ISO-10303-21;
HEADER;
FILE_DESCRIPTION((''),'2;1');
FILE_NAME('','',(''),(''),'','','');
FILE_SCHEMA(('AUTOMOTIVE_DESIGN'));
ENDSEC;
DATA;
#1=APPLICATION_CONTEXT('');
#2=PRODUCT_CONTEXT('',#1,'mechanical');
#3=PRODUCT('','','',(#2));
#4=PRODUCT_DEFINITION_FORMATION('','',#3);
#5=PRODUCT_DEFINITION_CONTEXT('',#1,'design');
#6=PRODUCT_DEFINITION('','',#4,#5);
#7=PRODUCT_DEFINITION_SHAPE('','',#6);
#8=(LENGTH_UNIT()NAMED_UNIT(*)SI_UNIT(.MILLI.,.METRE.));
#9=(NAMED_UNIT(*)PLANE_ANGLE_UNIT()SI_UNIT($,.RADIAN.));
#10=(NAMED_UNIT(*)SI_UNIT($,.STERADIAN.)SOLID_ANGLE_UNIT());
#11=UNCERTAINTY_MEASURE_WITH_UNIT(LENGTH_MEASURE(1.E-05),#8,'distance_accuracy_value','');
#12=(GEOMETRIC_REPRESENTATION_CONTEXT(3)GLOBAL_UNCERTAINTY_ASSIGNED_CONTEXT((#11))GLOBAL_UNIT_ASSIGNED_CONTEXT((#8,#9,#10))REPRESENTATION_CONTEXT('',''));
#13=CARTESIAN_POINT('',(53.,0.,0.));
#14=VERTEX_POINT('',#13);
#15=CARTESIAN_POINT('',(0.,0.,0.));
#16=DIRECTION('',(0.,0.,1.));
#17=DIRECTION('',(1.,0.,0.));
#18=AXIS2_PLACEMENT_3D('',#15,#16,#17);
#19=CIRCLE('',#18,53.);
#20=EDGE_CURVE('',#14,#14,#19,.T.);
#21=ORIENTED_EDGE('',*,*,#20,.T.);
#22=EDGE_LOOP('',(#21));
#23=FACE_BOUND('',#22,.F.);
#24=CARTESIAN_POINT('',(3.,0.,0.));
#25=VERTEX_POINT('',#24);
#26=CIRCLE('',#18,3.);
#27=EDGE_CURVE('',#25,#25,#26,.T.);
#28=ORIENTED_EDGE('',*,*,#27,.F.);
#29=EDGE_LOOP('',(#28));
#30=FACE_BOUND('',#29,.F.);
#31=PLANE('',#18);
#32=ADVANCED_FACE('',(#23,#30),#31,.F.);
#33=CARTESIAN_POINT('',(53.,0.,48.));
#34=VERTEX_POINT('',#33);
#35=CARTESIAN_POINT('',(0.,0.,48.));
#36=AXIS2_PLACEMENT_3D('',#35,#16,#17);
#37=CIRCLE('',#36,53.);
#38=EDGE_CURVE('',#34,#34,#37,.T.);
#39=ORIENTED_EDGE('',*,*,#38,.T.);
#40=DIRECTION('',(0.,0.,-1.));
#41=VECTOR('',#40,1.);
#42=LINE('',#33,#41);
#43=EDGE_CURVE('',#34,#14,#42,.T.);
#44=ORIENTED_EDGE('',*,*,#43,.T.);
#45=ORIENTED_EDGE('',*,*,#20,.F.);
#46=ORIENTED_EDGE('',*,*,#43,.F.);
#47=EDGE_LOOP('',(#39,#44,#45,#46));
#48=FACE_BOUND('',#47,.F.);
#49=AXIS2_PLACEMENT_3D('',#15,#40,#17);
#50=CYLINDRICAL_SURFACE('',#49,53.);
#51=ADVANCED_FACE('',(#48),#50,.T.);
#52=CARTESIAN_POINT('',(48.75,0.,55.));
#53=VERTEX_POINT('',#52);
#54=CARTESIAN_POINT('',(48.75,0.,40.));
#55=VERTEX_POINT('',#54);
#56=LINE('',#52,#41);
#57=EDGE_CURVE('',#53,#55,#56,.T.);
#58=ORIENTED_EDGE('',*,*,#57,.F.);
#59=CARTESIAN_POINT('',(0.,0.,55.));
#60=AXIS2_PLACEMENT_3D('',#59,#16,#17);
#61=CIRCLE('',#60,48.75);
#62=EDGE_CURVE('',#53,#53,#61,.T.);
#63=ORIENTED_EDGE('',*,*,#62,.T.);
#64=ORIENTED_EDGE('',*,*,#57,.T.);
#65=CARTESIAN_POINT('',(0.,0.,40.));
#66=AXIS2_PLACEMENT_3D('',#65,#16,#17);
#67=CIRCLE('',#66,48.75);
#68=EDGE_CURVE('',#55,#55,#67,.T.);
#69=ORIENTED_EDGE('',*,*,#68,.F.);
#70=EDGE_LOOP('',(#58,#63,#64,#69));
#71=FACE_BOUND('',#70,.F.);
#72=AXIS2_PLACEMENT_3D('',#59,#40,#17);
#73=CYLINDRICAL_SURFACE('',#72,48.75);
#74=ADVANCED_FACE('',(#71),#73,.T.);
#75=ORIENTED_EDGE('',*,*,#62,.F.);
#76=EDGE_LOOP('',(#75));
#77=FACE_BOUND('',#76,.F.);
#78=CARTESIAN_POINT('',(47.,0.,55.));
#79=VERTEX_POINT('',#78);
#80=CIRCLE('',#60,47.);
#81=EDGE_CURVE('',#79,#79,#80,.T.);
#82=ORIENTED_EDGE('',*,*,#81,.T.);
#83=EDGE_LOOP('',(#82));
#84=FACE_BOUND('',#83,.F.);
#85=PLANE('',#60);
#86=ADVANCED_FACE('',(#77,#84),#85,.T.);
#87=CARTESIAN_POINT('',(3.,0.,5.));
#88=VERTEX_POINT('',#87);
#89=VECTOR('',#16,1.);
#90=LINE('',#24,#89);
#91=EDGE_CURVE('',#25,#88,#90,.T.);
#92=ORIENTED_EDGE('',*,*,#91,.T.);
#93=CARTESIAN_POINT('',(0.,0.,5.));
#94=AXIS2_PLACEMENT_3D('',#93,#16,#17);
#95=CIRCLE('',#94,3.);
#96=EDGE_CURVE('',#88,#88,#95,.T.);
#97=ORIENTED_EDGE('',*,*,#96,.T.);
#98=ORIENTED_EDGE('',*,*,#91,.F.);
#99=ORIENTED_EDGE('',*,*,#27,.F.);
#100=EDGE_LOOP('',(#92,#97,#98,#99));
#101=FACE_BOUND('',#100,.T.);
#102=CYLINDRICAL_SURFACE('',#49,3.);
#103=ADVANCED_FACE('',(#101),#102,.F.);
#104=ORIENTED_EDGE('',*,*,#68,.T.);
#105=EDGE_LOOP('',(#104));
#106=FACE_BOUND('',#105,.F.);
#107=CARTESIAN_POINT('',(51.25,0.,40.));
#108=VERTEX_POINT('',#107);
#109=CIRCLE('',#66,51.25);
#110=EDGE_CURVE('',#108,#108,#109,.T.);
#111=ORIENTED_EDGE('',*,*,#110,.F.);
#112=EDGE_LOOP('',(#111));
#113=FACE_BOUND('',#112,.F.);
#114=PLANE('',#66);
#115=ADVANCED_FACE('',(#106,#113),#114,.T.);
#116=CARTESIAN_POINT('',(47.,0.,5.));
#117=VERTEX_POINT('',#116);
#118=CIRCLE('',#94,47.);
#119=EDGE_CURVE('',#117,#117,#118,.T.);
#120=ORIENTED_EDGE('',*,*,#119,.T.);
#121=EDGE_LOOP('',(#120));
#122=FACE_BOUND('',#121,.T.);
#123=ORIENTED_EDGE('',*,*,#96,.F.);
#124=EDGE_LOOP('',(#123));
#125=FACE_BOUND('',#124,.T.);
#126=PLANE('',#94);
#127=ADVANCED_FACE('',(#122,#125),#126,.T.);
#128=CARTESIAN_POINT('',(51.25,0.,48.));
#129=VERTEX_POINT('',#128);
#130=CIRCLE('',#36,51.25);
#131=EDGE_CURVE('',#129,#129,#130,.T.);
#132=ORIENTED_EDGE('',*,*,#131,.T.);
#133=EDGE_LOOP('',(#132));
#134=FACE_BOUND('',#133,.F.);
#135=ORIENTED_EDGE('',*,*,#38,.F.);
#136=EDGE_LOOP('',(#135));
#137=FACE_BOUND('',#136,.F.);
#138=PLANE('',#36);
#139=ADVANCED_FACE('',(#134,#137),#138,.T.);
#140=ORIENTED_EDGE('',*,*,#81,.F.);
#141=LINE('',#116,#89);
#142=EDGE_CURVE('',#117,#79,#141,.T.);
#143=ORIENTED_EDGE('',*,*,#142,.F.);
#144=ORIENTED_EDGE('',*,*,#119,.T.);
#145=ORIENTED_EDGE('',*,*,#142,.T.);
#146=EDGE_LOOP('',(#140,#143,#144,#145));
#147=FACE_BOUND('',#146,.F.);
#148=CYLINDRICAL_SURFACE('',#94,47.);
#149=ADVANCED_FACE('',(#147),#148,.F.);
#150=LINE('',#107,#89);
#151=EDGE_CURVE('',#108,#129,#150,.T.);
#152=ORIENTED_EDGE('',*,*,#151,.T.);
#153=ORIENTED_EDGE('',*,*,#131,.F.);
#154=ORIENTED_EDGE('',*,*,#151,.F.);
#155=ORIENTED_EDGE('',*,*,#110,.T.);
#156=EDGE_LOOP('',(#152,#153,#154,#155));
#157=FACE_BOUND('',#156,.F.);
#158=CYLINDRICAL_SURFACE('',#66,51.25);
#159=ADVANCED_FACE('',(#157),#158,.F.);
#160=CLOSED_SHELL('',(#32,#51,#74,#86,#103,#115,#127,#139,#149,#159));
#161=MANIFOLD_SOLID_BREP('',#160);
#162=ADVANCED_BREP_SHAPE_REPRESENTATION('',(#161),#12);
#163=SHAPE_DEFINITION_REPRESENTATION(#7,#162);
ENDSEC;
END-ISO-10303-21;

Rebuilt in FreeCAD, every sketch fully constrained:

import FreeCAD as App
import Part
import Sketcher
Q = App.Units.Quantity

doc = App.newDocument("Part")
body = doc.addObject("PartDesign::Body", "Body")

# Sketch on XY plane
sketch1 = body.newObject("Sketcher::SketchObject", "Sketch")
sketch1.AttachmentSupport = (doc.getObject("XY_Plane"), [""])
sketch1.MapMode = "FlatFace"
sketch1.addGeometry([
    Part.Circle(App.Vector(0, 0, 0), App.Vector(0, 0, 1), 53),
    Part.Circle(App.Vector(0, 0, 0), App.Vector(0, 0, 1), 3),
], False)
sketch1.addConstraint([
    Sketcher.Constraint("Coincident", 0, 3, -1, 1),
    Sketcher.Constraint("Coincident", 1, 3, -1, 1),
    Sketcher.Constraint("Diameter", 0, Q("106 mm")),
    Sketcher.Constraint("Diameter", 1, Q("6 mm")),
])
pad1 = body.newObject("PartDesign::Pad", "Pad")
pad1.Profile = sketch1
pad1.Length = 5

# Sketch on XZ plane
sketch2 = body.newObject("Sketcher::SketchObject", "Sketch001")
sketch2.AttachmentSupport = (doc.getObject("XZ_Plane"), [""])
sketch2.MapMode = "FlatFace"
sketch2.addGeometry([
    Part.LineSegment(App.Vector(47, 5, 0), App.Vector(53, 5, 0)),  # 0
    Part.LineSegment(App.Vector(53, 5, 0), App.Vector(53, 48, 0)),  # 1
    Part.LineSegment(App.Vector(53, 48, 0), App.Vector(51.2, 48, 0)),  # 2
    Part.LineSegment(App.Vector(51.2, 48, 0), App.Vector(51.2, 40, 0)),  # 3
    Part.LineSegment(App.Vector(51.2, 40, 0), App.Vector(48.8, 40, 0)),  # 4
    Part.LineSegment(App.Vector(48.8, 40, 0), App.Vector(48.8, 55, 0)),  # 5
    Part.LineSegment(App.Vector(48.8, 55, 0), App.Vector(47, 55, 0)),  # 6
    Part.LineSegment(App.Vector(47, 55, 0), App.Vector(47, 5, 0)),  # 7
], False)
sketch2.addConstraint([
    Sketcher.Constraint("Coincident", 0, 2, 1, 1),
    Sketcher.Constraint("Coincident", 1, 2, 2, 1),
    Sketcher.Constraint("Coincident", 2, 2, 3, 1),
    Sketcher.Constraint("Coincident", 3, 2, 4, 1),
    Sketcher.Constraint("Coincident", 4, 2, 5, 1),
    Sketcher.Constraint("Coincident", 5, 2, 6, 1),
    Sketcher.Constraint("Coincident", 6, 2, 7, 1),
    Sketcher.Constraint("Coincident", 7, 2, 0, 1),
    Sketcher.Constraint("Horizontal", 0),
    Sketcher.Constraint("Vertical", 1),
    Sketcher.Constraint("Horizontal", 2),
    Sketcher.Constraint("Vertical", 3),
    Sketcher.Constraint("Horizontal", 4),
    Sketcher.Constraint("Vertical", 5),
    Sketcher.Constraint("Horizontal", 6),
    Sketcher.Constraint("Vertical", 7),
    Sketcher.Constraint("Equal", 2, 6),
    Sketcher.Constraint("DistanceX", 0, 1, 0, 2, Q("6 mm")),
    Sketcher.Constraint("DistanceY", 1, 1, 1, 2, Q("43 mm")),
    Sketcher.Constraint("DistanceY", 3, 2, 3, 1, Q("8 mm")),
    Sketcher.Constraint("DistanceY", 5, 1, 5, 2, Q("15 mm")),
    Sketcher.Constraint("DistanceX", 4, 2, 4, 1, Q("2.5 mm")),
    Sketcher.Constraint("DistanceX", -1, 1, 0, 2, Q("53 mm")),
    Sketcher.Constraint("DistanceY", -1, 1, 0, 2, Q("5 mm")),
])
revolution = body.newObject("PartDesign::Revolution", "Revolution")
revolution.Profile = sketch2
revolution.ReferenceAxis = (sketch2, ["V_Axis"])
revolution.Angle = 360

doc.recompute()
